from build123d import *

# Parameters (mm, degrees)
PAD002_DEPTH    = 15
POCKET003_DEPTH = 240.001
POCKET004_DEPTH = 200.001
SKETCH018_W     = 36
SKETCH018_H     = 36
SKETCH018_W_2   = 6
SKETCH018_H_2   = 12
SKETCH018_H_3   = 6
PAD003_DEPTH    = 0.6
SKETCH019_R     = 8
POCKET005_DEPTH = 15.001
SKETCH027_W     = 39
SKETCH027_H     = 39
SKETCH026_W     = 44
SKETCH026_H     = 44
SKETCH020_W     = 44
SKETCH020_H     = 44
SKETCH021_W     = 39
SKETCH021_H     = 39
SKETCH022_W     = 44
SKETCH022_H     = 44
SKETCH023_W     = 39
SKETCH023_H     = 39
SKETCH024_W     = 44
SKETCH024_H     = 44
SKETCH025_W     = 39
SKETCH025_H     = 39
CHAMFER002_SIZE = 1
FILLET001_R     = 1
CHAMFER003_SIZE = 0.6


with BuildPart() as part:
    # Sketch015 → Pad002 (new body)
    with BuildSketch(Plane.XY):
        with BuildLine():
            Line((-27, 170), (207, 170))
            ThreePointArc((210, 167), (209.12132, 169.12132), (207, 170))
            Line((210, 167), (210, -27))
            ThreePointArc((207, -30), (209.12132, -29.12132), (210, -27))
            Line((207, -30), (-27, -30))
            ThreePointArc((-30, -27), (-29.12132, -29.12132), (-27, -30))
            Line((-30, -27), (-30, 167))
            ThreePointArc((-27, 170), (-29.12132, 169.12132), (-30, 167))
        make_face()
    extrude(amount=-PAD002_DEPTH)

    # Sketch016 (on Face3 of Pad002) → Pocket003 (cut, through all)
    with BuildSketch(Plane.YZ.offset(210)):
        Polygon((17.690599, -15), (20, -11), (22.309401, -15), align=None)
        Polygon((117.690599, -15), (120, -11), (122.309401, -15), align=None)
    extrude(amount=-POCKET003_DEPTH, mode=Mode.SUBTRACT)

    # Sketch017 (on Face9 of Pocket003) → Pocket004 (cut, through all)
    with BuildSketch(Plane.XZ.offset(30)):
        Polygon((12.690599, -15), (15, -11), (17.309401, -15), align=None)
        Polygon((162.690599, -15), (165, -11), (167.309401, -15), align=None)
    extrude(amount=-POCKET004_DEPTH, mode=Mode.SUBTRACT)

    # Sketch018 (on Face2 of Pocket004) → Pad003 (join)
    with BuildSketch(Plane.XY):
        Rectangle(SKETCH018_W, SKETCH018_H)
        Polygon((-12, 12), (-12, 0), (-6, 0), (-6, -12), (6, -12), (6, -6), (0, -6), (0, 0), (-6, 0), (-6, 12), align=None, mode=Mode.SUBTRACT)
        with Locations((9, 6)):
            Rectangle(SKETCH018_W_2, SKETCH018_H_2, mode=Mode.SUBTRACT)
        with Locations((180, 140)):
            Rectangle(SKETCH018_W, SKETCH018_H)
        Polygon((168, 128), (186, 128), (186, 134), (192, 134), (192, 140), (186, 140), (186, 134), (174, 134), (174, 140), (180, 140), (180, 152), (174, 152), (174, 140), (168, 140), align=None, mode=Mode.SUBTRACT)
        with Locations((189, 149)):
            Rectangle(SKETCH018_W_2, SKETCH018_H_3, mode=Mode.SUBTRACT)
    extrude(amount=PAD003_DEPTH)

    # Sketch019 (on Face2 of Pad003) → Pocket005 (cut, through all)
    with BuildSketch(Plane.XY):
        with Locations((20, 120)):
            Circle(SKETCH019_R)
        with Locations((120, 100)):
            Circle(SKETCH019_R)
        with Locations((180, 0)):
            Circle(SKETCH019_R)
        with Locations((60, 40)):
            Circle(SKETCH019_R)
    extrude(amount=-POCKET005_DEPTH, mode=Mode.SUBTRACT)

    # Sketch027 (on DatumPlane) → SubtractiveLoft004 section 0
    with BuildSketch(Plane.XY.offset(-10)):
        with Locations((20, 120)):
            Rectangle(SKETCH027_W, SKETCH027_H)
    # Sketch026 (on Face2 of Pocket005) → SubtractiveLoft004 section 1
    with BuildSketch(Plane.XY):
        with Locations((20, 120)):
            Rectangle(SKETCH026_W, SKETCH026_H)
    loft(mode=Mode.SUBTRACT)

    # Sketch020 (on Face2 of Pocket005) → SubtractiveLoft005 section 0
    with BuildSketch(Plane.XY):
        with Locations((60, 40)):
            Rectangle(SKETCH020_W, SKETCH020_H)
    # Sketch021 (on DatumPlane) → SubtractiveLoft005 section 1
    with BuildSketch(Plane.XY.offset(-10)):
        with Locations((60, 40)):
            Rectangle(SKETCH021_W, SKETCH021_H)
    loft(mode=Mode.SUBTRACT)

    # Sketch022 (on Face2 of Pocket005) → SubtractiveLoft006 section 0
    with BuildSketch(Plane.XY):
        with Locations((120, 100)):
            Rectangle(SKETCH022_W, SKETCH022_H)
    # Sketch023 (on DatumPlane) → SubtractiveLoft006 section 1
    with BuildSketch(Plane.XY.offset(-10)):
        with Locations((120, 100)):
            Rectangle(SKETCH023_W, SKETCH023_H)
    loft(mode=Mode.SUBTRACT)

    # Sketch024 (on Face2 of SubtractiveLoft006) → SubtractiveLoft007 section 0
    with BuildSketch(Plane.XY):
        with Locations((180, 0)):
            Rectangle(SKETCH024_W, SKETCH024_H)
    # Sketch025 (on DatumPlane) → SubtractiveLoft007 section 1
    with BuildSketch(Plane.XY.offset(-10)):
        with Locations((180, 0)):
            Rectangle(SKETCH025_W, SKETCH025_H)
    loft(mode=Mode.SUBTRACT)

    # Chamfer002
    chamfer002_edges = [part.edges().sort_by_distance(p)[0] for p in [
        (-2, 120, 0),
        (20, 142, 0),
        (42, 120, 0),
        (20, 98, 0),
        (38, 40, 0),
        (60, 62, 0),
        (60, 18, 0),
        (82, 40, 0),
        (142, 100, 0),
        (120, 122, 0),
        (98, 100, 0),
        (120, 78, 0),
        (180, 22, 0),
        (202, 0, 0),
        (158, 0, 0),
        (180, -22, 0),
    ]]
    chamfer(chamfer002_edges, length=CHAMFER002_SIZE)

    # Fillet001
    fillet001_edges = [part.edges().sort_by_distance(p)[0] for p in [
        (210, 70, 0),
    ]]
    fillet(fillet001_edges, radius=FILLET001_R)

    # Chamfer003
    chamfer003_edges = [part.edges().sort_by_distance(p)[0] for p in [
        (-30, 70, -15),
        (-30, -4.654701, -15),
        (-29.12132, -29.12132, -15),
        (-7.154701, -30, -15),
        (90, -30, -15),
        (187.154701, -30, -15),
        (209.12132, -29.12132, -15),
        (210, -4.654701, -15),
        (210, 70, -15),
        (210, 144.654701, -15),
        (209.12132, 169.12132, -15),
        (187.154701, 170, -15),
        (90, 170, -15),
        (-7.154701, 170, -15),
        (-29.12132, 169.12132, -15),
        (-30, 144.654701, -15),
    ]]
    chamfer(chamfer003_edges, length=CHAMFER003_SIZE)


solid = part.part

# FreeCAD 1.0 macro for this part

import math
import FreeCAD as App
import Part
import Sketcher
Q = App.Units.Quantity


def edges_at(feature, points):
    """Names of the edges that pass closest to the given points."""
    edges = feature.Shape.Edges
    near = lambda p: min(range(len(edges)), key=lambda i: edges[i].distToShape(Part.Vertex(*p))[0])
    return sorted({f"Edge{near(p) + 1}" for p in points})


def add_polygon(sketch, points):
    """Adds a closed chain of lines whose ends are joined by coincident constraints."""
    first, n = sketch.GeometryCount, len(points)
    for a, b in zip(points, points[1:] + points[:1]):
        sketch.addGeometry(Part.LineSegment(App.Vector(*a, 0), App.Vector(*b, 0)), False)
    for i in range(n):
        sketch.addConstraint(Sketcher.Constraint("Coincident", first + i, 2, first + (i + 1) % n, 1))

doc = App.newDocument("Part")
body = doc.addObject("PartDesign::Body", "Body")

sketch1 = body.newObject("Sketcher::SketchObject", "Sketch")
sketch1.AttachmentSupport = (doc.getObject("XY_Plane"), [""])
sketch1.MapMode = "FlatFace"
sketch1.addGeometry([
    Part.LineSegment(App.Vector(207, 170, 0), App.Vector(-27, 170, 0)),
    Part.ArcOfCircle(Part.Circle(App.Vector(-27, 167, 0), App.Vector(0, 0, 1), 3), math.radians(90), math.radians(180)),
    Part.LineSegment(App.Vector(-30, 167, 0), App.Vector(-30, -27, 0)),
    Part.ArcOfCircle(Part.Circle(App.Vector(-27, -27, 0), App.Vector(0, 0, 1), 3), math.radians(-180), math.radians(-90)),
    Part.LineSegment(App.Vector(-27, -30, 0), App.Vector(207, -30, 0)),
    Part.ArcOfCircle(Part.Circle(App.Vector(207, -27, 0), App.Vector(0, 0, 1), 3), math.radians(-90), math.radians(0)),
    Part.LineSegment(App.Vector(210, -27, 0), App.Vector(210, 167, 0)),
    Part.ArcOfCircle(Part.Circle(App.Vector(207, 167, 0), App.Vector(0, 0, 1), 3), math.radians(0), math.radians(90)),
], False)
sketch1.addConstraint([
    Sketcher.Constraint("Tangent", 0, 2, 1, 1),
    Sketcher.Constraint("Tangent", 1, 2, 2, 1),
    Sketcher.Constraint("Tangent", 2, 2, 3, 1),
    Sketcher.Constraint("Tangent", 3, 2, 4, 1),
    Sketcher.Constraint("Tangent", 4, 2, 5, 1),
    Sketcher.Constraint("Tangent", 5, 2, 6, 1),
    Sketcher.Constraint("Tangent", 6, 2, 7, 1),
    Sketcher.Constraint("Tangent", 7, 2, 0, 1),
    Sketcher.Constraint("Horizontal", 0),
    Sketcher.Constraint("Vertical", 2),
    Sketcher.Constraint("Horizontal", 4),
    Sketcher.Constraint("Vertical", 6),
    Sketcher.Constraint("Equal", 1, 3),
    Sketcher.Constraint("Equal", 3, 5),
    Sketcher.Constraint("Equal", 5, 7),
    Sketcher.Constraint("Radius", 1, Q("3.000001 mm")),
    Sketcher.Constraint("DistanceX", 0, 2, 0, 1, Q("234 mm")),
    Sketcher.Constraint("DistanceY", 2, 2, 2, 1, Q("194 mm")),
    Sketcher.Constraint("DistanceX", 1, 3, -1, 1, Q("26.999999 mm")),
    Sketcher.Constraint("DistanceY", -1, 1, 1, 3, Q("166.999999 mm")),
])
pad1 = body.newObject("PartDesign::Pad", "Pad")
pad1.Profile = sketch1
pad1.Length = 15
pad1.Reversed = True

sketch2 = body.newObject("Sketcher::SketchObject", "Sketch001")
sketch2.AttachmentSupport = (doc.getObject("YZ_Plane"), [""])
sketch2.MapMode = "FlatFace"
sketch2.AttachmentOffset = App.Placement(App.Vector(0, 0, 210), App.Rotation())
add_polygon(sketch2, [(20, -11), (17.7, -15), (22.3, -15)])
add_polygon(sketch2, [(120, -11), (117.7, -15), (122.3, -15)])
sketch2.addConstraint([
    Sketcher.Constraint("Horizontal", 1),
    Sketcher.Constraint("Horizontal", 4),
    Sketcher.Constraint("Parallel", 0, 3),
    Sketcher.Constraint("Parallel", 2, 5),
    Sketcher.Constraint("Horizontal", 1, 2, 3, 2),
    Sketcher.Constraint("Horizontal", 2, 2, 5, 2),
    Sketcher.Constraint("Equal", 0, 2),
    Sketcher.Constraint("Angle", 0, Q("-119.999999 deg")),
    Sketcher.Constraint("DistanceY", 0, 2, -1, 1, Q("15 mm")),
    Sketcher.Constraint("DistanceX", -1, 1, 2, 2, Q("20 mm")),
    Sketcher.Constraint("DistanceY", 2, 2, -1, 1, Q("11 mm")),
    Sketcher.Constraint("DistanceX", -1, 1, 5, 2, Q("120 mm")),
])
pocket1 = body.newObject("PartDesign::Pocket", "Pocket")
pocket1.Profile = sketch2
pocket1.Type = "ThroughAll"

sketch3 = body.newObject("Sketcher::SketchObject", "Sketch002")
sketch3.AttachmentSupport = (doc.getObject("XZ_Plane"), [""])
sketch3.MapMode = "FlatFace"
sketch3.AttachmentOffset = App.Placement(App.Vector(0, 0, 30), App.Rotation())
add_polygon(sketch3, [(15, -11), (12.7, -15), (17.3, -15)])
add_polygon(sketch3, [(165, -11), (162.7, -15), (167.3, -15)])
sketch3.addConstraint([
    Sketcher.Constraint("Horizontal", 1),
    Sketcher.Constraint("Horizontal", 4),
    Sketcher.Constraint("Parallel", 0, 3),
    Sketcher.Constraint("Parallel", 2, 5),
    Sketcher.Constraint("Horizontal", 1, 2, 3, 2),
    Sketcher.Constraint("Horizontal", 2, 2, 5, 2),
    Sketcher.Constraint("Equal", 0, 2),
    Sketcher.Constraint("Angle", 0, Q("-119.999999 deg")),
    Sketcher.Constraint("DistanceY", 0, 2, -1, 1, Q("15 mm")),
    Sketcher.Constraint("DistanceX", -1, 1, 2, 2, Q("15 mm")),
    Sketcher.Constraint("DistanceY", 2, 2, -1, 1, Q("11 mm")),
    Sketcher.Constraint("DistanceX", -1, 1, 5, 2, Q("165 mm")),
])
pocket2 = body.newObject("PartDesign::Pocket", "Pocket001")
pocket2.Profile = sketch3
pocket2.Type = "ThroughAll"

sketch4 = body.newObject("Sketcher::SketchObject", "Sketch003")
sketch4.AttachmentSupport = (doc.getObject("XY_Plane"), [""])
sketch4.MapMode = "FlatFace"
add_polygon(sketch4, [(-18, 18), (-18, -18), (18, -18), (18, 18)])
add_polygon(sketch4, [(-12, 0), (-12, 12), (-6, 12), (-6, 0), (0, 0), (0, -6), (6, -6), (6, -12), (-6, -12), (-6, 0)])
add_polygon(sketch4, [(12, 0), (6, 0), (6, 12), (12, 12)])
add_polygon(sketch4, [(162, 158), (162, 122), (198, 122), (198, 158)])
add_polygon(sketch4, [(186, 128), (168, 128), (168, 140), (174, 140), (174, 152), (180, 152), (180, 140), (174, 140), (174, 134), (186, 134), (186, 140), (192, 140), (192, 134), (186, 134)])
add_polygon(sketch4, [(192, 146), (186, 146), (186, 152), (192, 152)])
sketch4.addConstraint([
    Sketcher.Constraint("Vertical", 0),
    Sketcher.Constraint("Horizontal", 1),
    Sketcher.Constraint("Vertical", 2),
    Sketcher.Constraint("Horizontal", 3),
    Sketcher.Constraint("Vertical", 4),
    Sketcher.Constraint("Horizontal", 5),
    Sketcher.Constraint("Vertical", 6),
    Sketcher.Constraint("Horizontal", 7),
    Sketcher.Constraint("Vertical", 8),
    Sketcher.Constraint("Horizontal", 9),
    Sketcher.Constraint("Vertical", 10),
    Sketcher.Constraint("Horizontal", 11),
    Sketcher.Constraint("Vertical", 12),
    Sketcher.Constraint("Horizontal", 13),
    Sketcher.Constraint("Horizontal", 14),
    Sketcher.Constraint("Vertical", 15),
    Sketcher.Constraint("Horizontal", 16),
    Sketcher.Constraint("Vertical", 17),
    Sketcher.Constraint("Vertical", 18),
    Sketcher.Constraint("Horizontal", 19),
    Sketcher.Constraint("Vertical", 20),
    Sketcher.Constraint("Horizontal", 21),
    Sketcher.Constraint("Horizontal", 22),
    Sketcher.Constraint("Vertical", 23),
    Sketcher.Constraint("Horizontal", 24),
    Sketcher.Constraint("Vertical", 25),
    Sketcher.Constraint("Horizontal", 26),
    Sketcher.Constraint("Vertical", 27),
    Sketcher.Constraint("Horizontal", 28),
    Sketcher.Constraint("Vertical", 29),
    Sketcher.Constraint("Horizontal", 30),
    Sketcher.Constraint("Vertical", 31),
    Sketcher.Constraint("Horizontal", 32),
    Sketcher.Constraint("Vertical", 33),
    Sketcher.Constraint("Horizontal", 34),
    Sketcher.Constraint("Vertical", 35),
    Sketcher.Constraint("Horizontal", 36),
    Sketcher.Constraint("Vertical", 37),
    Sketcher.Constraint("Horizontal", 38),
    Sketcher.Constraint("Vertical", 39),
    Sketcher.Constraint("Coincident", 7, 2, -1, 1),
    Sketcher.Constraint("Coincident", 12, 2, 6, 2),
    Sketcher.Constraint("Coincident", 28, 2, 24, 2),
    Sketcher.Constraint("Coincident", 34, 2, 30, 2),
    Sketcher.Constraint("Symmetric", 0, 2, 2, 2, -1, 1),
    Sketcher.Constraint("Symmetric", 5, 2, 10, 2, -1, 1),
    Sketcher.Constraint("Symmetric", 6, 2, 14, 2, -1, 1),
    Sketcher.Constraint("Symmetric", 4, 2, 16, 2, -2),
    Sketcher.Constraint("Horizontal", 28, 2, 31, 2),
    Sketcher.Constraint("Horizontal", 26, 2, 37, 2),
    Sketcher.Constraint("Vertical", 35, 2, 36, 2),
    Sketcher.Constraint("Vertical", 33, 2, 38, 2),
    Sketcher.Constraint("Equal", 5, 7),
    Sketcher.Constraint("Equal", 3, 19),
    Sketcher.Constraint("Equal", 16, 24),
    Sketcher.Constraint("Equal", 24, 26),
    Sketcher.Constraint("Equal", 11, 30),
    Sketcher.Constraint("Equal", 28, 32),
    Sketcher.Constraint("Equal", 21, 0),
    Sketcher.Constraint("Equal", 30, 4),
    Sketcher.Constraint("Equal", 38, 8),
    Sketcher.Constraint("Equal", 2, 18),
    Sketcher.Constraint("Equal", 17, 23),
    Sketcher.Constraint("Equal", 23, 25),
    Sketcher.Constraint("Equal", 10, 29),
    Sketcher.Constraint("Equal", 35, 37),
    Sketcher.Constraint("DistanceX", 1, 1, 1, 2, Q("36 mm")),
    Sketcher.Constraint("DistanceX", 5, 1, 5, 2, Q("6 mm")),
    Sketcher.Constraint("DistanceX", -1, 1, 18, 2, Q("162 mm")),
    Sketcher.Constraint("DistanceY", -1, 1, 18, 2, Q("122 mm")),
    Sketcher.Constraint("DistanceX", -1, 1, 22, 2, Q("168 mm")),
    Sketcher.Constraint("DistanceY", -1, 1, 22, 2, Q("128 mm")),
])
pad2 = body.newObject("PartDesign::Pad", "Pad001")
pad2.Profile = sketch4
pad2.Length = 0.6

sketch5 = body.newObject("Sketcher::SketchObject", "Sketch004")
sketch5.AttachmentSupport = (doc.getObject("XY_Plane"), [""])
sketch5.MapMode = "FlatFace"
sketch5.addGeometry([
    Part.Circle(App.Vector(20, 120, 0), App.Vector(0, 0, 1), 8),
    Part.Circle(App.Vector(120, 100, 0), App.Vector(0, 0, 1), 8),
    Part.Circle(App.Vector(180, 0, 0), App.Vector(0, 0, 1), 8),
    Part.Circle(App.Vector(60, 40, 0), App.Vector(0, 0, 1), 8),
], False)
sketch5.addConstraint([
    Sketcher.Constraint("Equal", 0, 1),
    Sketcher.Constraint("Equal", 1, 2),
    Sketcher.Constraint("Equal", 2, 3),
    Sketcher.Constraint("PointOnObject", 2, 3, -1),
    Sketcher.Constraint("Diameter", 0, Q("16 mm")),
    Sketcher.Constraint("DistanceX", -1, 1, 0, 3, Q("20 mm")),
    Sketcher.Constraint("DistanceY", -1, 1, 0, 3, Q("120 mm")),
    Sketcher.Constraint("DistanceX", -1, 1, 1, 3, Q("120 mm")),
    Sketcher.Constraint("DistanceY", -1, 1, 1, 3, Q("100 mm")),
    Sketcher.Constraint("DistanceX", -1, 1, 2, 3, Q("180 mm")),
    Sketcher.Constraint("DistanceX", -1, 1, 3, 3, Q("60 mm")),
    Sketcher.Constraint("DistanceY", -1, 1, 3, 3, Q("40 mm")),
])
pocket3 = body.newObject("PartDesign::Pocket", "Pocket002")
pocket3.Profile = sketch5
pocket3.Type = "ThroughAll"

sketch6 = body.newObject("Sketcher::SketchObject", "Sketch005")
sketch6.AttachmentSupport = (doc.getObject("XY_Plane"), [""])
sketch6.MapMode = "FlatFace"
sketch6.AttachmentOffset = App.Placement(App.Vector(0, 0, -10), App.Rotation())
add_polygon(sketch6, [(0, 140), (0, 100), (40, 100), (40, 140)])
sketch6.addConstraint([
    Sketcher.Constraint("Vertical", 0),
    Sketcher.Constraint("Horizontal", 1),
    Sketcher.Constraint("Vertical", 2),
    Sketcher.Constraint("Horizontal", 3),
    Sketcher.Constraint("Equal", 3, 0),
    Sketcher.Constraint("DistanceX", 1, 1, 1, 2, Q("39 mm")),
    Sketcher.Constraint("DistanceX", -1, 1, 0, 2, Q("0.5 mm")),
    Sketcher.Constraint("DistanceY", -1, 1, 0, 2, Q("100.5 mm")),
])

sketch7 = body.newObject("Sketcher::SketchObject", "Sketch006")
sketch7.AttachmentSupport = (doc.getObject("XY_Plane"), [""])
sketch7.MapMode = "FlatFace"
add_polygon(sketch7, [(-2, 142), (-2, 98), (42, 98), (42, 142)])
sketch7.addConstraint([
    Sketcher.Constraint("Vertical", 0),
    Sketcher.Constraint("Horizontal", 1),
    Sketcher.Constraint("Vertical", 2),
    Sketcher.Constraint("Horizontal", 3),
    Sketcher.Constraint("Equal", 3, 0),
    Sketcher.Constraint("DistanceX", 1, 1, 1, 2, Q("44 mm")),
    Sketcher.Constraint("DistanceX", 0, 2, -1, 1, Q("2 mm")),
    Sketcher.Constraint("DistanceY", -1, 1, 0, 2, Q("98 mm")),
])

subtractiveloft = body.newObject("PartDesign::SubtractiveLoft", "SubtractiveLoft")
subtractiveloft.Profile = sketch6
subtractiveloft.Sections = [sketch7]

sketch8 = body.newObject("Sketcher::SketchObject", "Sketch007")
sketch8.AttachmentSupport = (doc.getObject("XY_Plane"), [""])
sketch8.MapMode = "FlatFace"
add_polygon(sketch8, [(38, 62), (38, 18), (82, 18), (82, 62)])
sketch8.addConstraint([
    Sketcher.Constraint("Vertical", 0),
    Sketcher.Constraint("Horizontal", 1),
    Sketcher.Constraint("Vertical", 2),
    Sketcher.Constraint("Horizontal", 3),
    Sketcher.Constraint("Equal", 3, 0),
    Sketcher.Constraint("DistanceX", 1, 1, 1, 2, Q("44 mm")),
    Sketcher.Constraint("DistanceX", -1, 1, 0, 2, Q("38 mm")),
    Sketcher.Constraint("DistanceY", -1, 1, 0, 2, Q("18 mm")),
])

sketch9 = body.newObject("Sketcher::SketchObject", "Sketch008")
sketch9.AttachmentSupport = (doc.getObject("XY_Plane"), [""])
sketch9.MapMode = "FlatFace"
sketch9.AttachmentOffset = App.Placement(App.Vector(0, 0, -10), App.Rotation())
add_polygon(sketch9, [(40, 60), (40, 20), (80, 20), (80, 60)])
sketch9.addConstraint([
    Sketcher.Constraint("Vertical", 0),
    Sketcher.Constraint("Horizontal", 1),
    Sketcher.Constraint("Vertical", 2),
    Sketcher.Constraint("Horizontal", 3),
    Sketcher.Constraint("Equal", 3, 0),
    Sketcher.Constraint("DistanceX", 1, 1, 1, 2, Q("39 mm")),
    Sketcher.Constraint("DistanceX", -1, 1, 0, 2, Q("40.5 mm")),
    Sketcher.Constraint("DistanceY", -1, 1, 0, 2, Q("20.5 mm")),
])

subtractiveloft2 = body.newObject("PartDesign::SubtractiveLoft", "SubtractiveLoft001")
subtractiveloft2.Profile = sketch8
subtractiveloft2.Sections = [sketch9]

sketch10 = body.newObject("Sketcher::SketchObject", "Sketch009")
sketch10.AttachmentSupport = (doc.getObject("XY_Plane"), [""])
sketch10.MapMode = "FlatFace"
add_polygon(sketch10, [(98, 122), (98, 78), (142, 78), (142, 122)])
sketch10.addConstraint([
    Sketcher.Constraint("Vertical", 0),
    Sketcher.Constraint("Horizontal", 1),
    Sketcher.Constraint("Vertical", 2),
    Sketcher.Constraint("Horizontal", 3),
    Sketcher.Constraint("Equal", 3, 0),
    Sketcher.Constraint("DistanceX", 1, 1, 1, 2, Q("44 mm")),
    Sketcher.Constraint("DistanceX", -1, 1, 0, 2, Q("98 mm")),
    Sketcher.Constraint("DistanceY", -1, 1, 0, 2, Q("78 mm")),
])

sketch11 = body.newObject("Sketcher::SketchObject", "Sketch010")
sketch11.AttachmentSupport = (doc.getObject("XY_Plane"), [""])
sketch11.MapMode = "FlatFace"
sketch11.AttachmentOffset = App.Placement(App.Vector(0, 0, -10), App.Rotation())
add_polygon(sketch11, [(100, 120), (100, 80), (140, 80), (140, 120)])
sketch11.addConstraint([
    Sketcher.Constraint("Vertical", 0),
    Sketcher.Constraint("Horizontal", 1),
    Sketcher.Constraint("Vertical", 2),
    Sketcher.Constraint("Horizontal", 3),
    Sketcher.Constraint("Equal", 3, 0),
    Sketcher.Constraint("DistanceX", 1, 1, 1, 2, Q("39 mm")),
    Sketcher.Constraint("DistanceX", -1, 1, 0, 2, Q("100.5 mm")),
    Sketcher.Constraint("DistanceY", -1, 1, 0, 2, Q("80.5 mm")),
])

subtractiveloft3 = body.newObject("PartDesign::SubtractiveLoft", "SubtractiveLoft002")
subtractiveloft3.Profile = sketch10
subtractiveloft3.Sections = [sketch11]

sketch12 = body.newObject("Sketcher::SketchObject", "Sketch011")
sketch12.AttachmentSupport = (doc.getObject("XY_Plane"), [""])
sketch12.MapMode = "FlatFace"
add_polygon(sketch12, [(158, 22), (158, -22), (202, -22), (202, 22)])
sketch12.addConstraint([
    Sketcher.Constraint("Vertical", 0),
    Sketcher.Constraint("Horizontal", 1),
    Sketcher.Constraint("Vertical", 2),
    Sketcher.Constraint("Horizontal", 3),
    Sketcher.Constraint("Equal", 3, 0),
    Sketcher.Constraint("DistanceX", 1, 1, 1, 2, Q("44 mm")),
    Sketcher.Constraint("DistanceX", -1, 1, 0, 2, Q("158 mm")),
    Sketcher.Constraint("DistanceY", 0, 2, -1, 1, Q("22 mm")),
])

sketch13 = body.newObject("Sketcher::SketchObject", "Sketch012")
sketch13.AttachmentSupport = (doc.getObject("XY_Plane"), [""])
sketch13.MapMode = "FlatFace"
sketch13.AttachmentOffset = App.Placement(App.Vector(0, 0, -10), App.Rotation())
add_polygon(sketch13, [(160, 20), (160, -20), (200, -20), (200, 20)])
sketch13.addConstraint([
    Sketcher.Constraint("Vertical", 0),
    Sketcher.Constraint("Horizontal", 1),
    Sketcher.Constraint("Vertical", 2),
    Sketcher.Constraint("Horizontal", 3),
    Sketcher.Constraint("Equal", 3, 0),
    Sketcher.Constraint("DistanceX", 1, 1, 1, 2, Q("39 mm")),
    Sketcher.Constraint("DistanceX", -1, 1, 0, 2, Q("160.5 mm")),
    Sketcher.Constraint("DistanceY", 0, 2, -1, 1, Q("19.5 mm")),
])

subtractiveloft4 = body.newObject("PartDesign::SubtractiveLoft", "SubtractiveLoft003")
subtractiveloft4.Profile = sketch12
subtractiveloft4.Sections = [sketch13]
doc.recompute()

chamfer = body.newObject("PartDesign::Chamfer", "Chamfer")
chamfer.Base = (subtractiveloft4, edges_at(subtractiveloft4, [
    (-2, 120, 0),
    (20, 142, 0),
    (42, 120, 0),
    (20, 98, 0),
    (38, 40, 0),
    (60, 62, 0),
    (60, 18, 0),
    (82, 40, 0),
    (142, 100, 0),
    (120, 122, 0),
    (98, 100, 0),
    (120, 78, 0),
    (180, 22, 0),
    (202, 0, 0),
    (158, 0, 0),
    (180, -22, 0),
]))
chamfer.Size = 1
doc.recompute()

fillet = body.newObject("PartDesign::Fillet", "Fillet")
fillet.Base = (chamfer, edges_at(chamfer, [(210, 70, 0)]))
fillet.Radius = 1
doc.recompute()

chamfer2 = body.newObject("PartDesign::Chamfer", "Chamfer001")
chamfer2.Base = (fillet, edges_at(fillet, [
    (-30, 70, -15),
    (-30, -4.655, -15),
    (-29.121, -29.121, -15),
    (-7.155, -30, -15),
    (90, -30, -15),
    (187.155, -30, -15),
    (209.121, -29.121, -15),
    (210, -4.655, -15),
    (210, 70, -15),
    (210, 144.655, -15),
    (209.121, 169.121, -15),
    (187.155, 170, -15),
    (90, 170, -15),
    (-7.155, 170, -15),
    (-29.121, 169.121, -15),
    (-30, 144.655, -15),
]))
chamfer2.Size = 0.6

doc.recompute()
